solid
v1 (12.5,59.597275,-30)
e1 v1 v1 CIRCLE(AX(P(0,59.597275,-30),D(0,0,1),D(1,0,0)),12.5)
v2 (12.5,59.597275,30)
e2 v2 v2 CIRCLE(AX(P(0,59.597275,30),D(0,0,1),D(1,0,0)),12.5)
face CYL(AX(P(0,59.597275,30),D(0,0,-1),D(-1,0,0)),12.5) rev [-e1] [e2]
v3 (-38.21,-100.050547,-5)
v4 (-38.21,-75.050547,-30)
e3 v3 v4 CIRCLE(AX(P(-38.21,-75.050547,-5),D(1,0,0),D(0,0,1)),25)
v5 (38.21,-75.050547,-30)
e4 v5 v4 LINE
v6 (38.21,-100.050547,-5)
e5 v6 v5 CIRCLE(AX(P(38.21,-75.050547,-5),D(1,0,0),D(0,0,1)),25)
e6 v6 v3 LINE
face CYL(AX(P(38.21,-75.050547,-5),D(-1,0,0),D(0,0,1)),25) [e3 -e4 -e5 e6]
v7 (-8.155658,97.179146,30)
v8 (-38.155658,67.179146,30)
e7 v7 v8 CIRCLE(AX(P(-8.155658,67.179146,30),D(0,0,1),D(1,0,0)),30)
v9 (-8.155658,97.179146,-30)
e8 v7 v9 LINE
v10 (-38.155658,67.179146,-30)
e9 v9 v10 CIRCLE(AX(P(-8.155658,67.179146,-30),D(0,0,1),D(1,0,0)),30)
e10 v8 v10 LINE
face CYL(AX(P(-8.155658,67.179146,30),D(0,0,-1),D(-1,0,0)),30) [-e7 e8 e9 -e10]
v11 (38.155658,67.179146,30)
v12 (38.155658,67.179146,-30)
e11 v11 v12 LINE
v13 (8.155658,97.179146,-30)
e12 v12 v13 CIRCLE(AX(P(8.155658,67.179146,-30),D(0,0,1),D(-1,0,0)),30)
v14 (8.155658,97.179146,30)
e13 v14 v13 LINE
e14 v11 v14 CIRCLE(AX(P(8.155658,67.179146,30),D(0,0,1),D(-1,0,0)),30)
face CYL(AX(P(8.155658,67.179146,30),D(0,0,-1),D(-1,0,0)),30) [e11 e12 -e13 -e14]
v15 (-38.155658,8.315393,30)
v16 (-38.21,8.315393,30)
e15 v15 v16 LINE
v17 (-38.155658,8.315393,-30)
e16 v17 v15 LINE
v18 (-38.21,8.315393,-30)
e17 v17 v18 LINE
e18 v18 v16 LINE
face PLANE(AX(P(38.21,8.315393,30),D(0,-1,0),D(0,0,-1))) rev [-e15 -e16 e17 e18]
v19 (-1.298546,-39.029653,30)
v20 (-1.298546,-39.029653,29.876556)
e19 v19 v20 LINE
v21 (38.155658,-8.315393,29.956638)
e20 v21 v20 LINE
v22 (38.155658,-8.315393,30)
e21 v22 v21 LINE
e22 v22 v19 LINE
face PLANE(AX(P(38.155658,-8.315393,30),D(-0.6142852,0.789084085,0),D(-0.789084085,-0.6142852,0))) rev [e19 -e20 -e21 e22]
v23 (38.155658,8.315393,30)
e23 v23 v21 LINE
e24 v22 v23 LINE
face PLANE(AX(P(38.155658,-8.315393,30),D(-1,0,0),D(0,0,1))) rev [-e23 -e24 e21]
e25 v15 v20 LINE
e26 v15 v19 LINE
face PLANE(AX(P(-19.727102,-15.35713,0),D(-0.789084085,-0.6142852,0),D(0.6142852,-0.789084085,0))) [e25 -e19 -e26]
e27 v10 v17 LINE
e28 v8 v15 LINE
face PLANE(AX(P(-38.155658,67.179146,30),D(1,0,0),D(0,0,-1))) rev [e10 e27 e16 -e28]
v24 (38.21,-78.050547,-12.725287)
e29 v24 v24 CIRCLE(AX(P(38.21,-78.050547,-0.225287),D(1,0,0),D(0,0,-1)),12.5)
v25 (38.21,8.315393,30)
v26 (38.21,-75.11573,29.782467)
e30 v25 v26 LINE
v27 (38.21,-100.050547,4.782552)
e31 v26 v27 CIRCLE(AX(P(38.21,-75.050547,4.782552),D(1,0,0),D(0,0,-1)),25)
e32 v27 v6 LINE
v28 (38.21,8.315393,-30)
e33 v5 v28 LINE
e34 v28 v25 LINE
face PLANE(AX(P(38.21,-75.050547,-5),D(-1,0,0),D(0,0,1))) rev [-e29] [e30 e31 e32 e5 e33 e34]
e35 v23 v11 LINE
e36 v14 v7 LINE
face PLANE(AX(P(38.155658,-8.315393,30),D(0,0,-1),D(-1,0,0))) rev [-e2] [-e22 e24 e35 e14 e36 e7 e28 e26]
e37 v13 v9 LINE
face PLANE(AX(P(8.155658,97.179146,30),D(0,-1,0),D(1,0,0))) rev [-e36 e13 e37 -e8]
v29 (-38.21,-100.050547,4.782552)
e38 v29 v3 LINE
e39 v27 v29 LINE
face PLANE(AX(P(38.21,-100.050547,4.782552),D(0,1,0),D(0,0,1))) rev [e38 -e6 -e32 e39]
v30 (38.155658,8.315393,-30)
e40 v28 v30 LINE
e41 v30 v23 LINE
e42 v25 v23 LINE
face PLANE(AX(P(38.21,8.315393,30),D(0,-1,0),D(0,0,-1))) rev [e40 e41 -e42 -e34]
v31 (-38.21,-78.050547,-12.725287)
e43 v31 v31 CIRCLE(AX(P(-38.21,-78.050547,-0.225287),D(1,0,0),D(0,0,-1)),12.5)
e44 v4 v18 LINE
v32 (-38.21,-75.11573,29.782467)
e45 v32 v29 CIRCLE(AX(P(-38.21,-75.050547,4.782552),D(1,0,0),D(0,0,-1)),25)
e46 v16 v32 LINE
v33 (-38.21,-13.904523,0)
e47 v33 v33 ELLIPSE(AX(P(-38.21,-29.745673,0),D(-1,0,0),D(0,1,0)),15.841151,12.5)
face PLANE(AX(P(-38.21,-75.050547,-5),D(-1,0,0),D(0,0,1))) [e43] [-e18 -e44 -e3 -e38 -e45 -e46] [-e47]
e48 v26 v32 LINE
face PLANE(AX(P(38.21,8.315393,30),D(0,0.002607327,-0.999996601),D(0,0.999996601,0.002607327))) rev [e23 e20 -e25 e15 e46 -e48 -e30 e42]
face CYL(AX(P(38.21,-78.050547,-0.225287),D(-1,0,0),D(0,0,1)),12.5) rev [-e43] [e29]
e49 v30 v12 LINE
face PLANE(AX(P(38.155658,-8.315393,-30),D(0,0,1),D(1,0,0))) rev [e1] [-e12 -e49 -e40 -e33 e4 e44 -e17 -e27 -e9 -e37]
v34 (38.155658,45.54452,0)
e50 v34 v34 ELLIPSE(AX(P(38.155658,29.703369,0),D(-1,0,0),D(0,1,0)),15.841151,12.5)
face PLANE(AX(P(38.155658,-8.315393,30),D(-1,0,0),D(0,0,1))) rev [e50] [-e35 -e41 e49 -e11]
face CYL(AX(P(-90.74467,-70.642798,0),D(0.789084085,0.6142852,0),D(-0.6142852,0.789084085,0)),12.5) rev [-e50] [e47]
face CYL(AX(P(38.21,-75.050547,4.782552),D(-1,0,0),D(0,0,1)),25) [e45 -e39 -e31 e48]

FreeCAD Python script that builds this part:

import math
import FreeCAD as App
import Part
import Sketcher

V = App.Vector
Q = App.Units.Quantity


def add_polygon(sketch, points):
    """Adds a closed chain of lines whose ends are joined by coincident constraints."""
    first, n = sketch.GeometryCount, len(points)
    for a, b in zip(points, points[1:] + points[:1]):
        sketch.addGeometry(Part.LineSegment(App.Vector(*a, 0), App.Vector(*b, 0)), False)
    for i in range(n):
        sketch.addConstraint(Sketcher.Constraint("Coincident", first + i, 2, first + (i + 1) % n, 1))

doc = App.newDocument("Part")
body = doc.addObject("PartDesign::Body", "Body")

sketch1 = doc.addObject("Sketcher::SketchObject", "Sketch")
body.addObject(sketch1)
sketch1.Placement = App.Placement(V(0, 0, 0), App.Rotation(V(0, 0, -1), V(-0.6142852, 0.789084085, 0), V(0.789084085, 0.6142852, 0), "ZXY"))
add_polygon(sketch1, [(-30, 30), (-30, -30), (30, -30), (30, 30)])
sketch1.addGeometry(Part.Circle(V(0, 0, 0), V(0, 0, 1), 12), False)
sketch1.addConstraint([
    Sketcher.Constraint("Vertical", 0),
    Sketcher.Constraint("Horizontal", 1),
    Sketcher.Constraint("Vertical", 2),
    Sketcher.Constraint("Horizontal", 3),
    Sketcher.Constraint("Coincident", 4, 3, -1, 1),
    Sketcher.Constraint("Symmetric", 0, 2, 2, 2, -1, 1),
    Sketcher.Constraint("Equal", 3, 0),
    Sketcher.Constraint("Diameter", 4, Q("25 mm")),
    Sketcher.Constraint("DistanceX", 1, 1, 1, 2, Q("60 mm")),
])
pad1 = doc.addObject("PartDesign::Pad", "Pad")
body.addObject(pad1)
pad1.Profile = sketch1
pad1.Length = 50
pad1.Midplane = True

sketch2 = doc.addObject("Sketcher::SketchObject", "Sketch001")
body.addObject(sketch2)
sketch2.AttachmentSupport = (doc.XY_Plane, [""])
sketch2.MapMode = "FlatFace"
sketch2.addGeometry([
    Part.LineSegment(V(38, -8, 0), V(38, 67, 0)),
    Part.ArcOfCircle(Part.Circle(V(8, 67, 0), V(0, 0, 1), 30), math.radians(0), math.radians(90)),
    Part.LineSegment(V(8, 97, 0), V(-8, 97, 0)),
    Part.ArcOfCircle(Part.Circle(V(-8, 67, 0), V(0, 0, 1), 30), math.radians(90), math.radians(180)),
    Part.LineSegment(V(-38, 67, 0), V(-38, 8, 0)),
    Part.LineSegment(V(-38, 8, 0), V(38, -8, 0)),
    Part.Circle(V(0, 60, 0), V(0, 0, 1), 12),
], False)
sketch2.addConstraint([
    Sketcher.Constraint("Tangent", 0, 2, 1, 1),
    Sketcher.Constraint("Tangent", 1, 2, 2, 1),
    Sketcher.Constraint("Tangent", 2, 2, 3, 1),
    Sketcher.Constraint("Tangent", 3, 2, 4, 1),
    Sketcher.Constraint("Coincident", 4, 2, 5, 1),
    Sketcher.Constraint("Coincident", 5, 2, 0, 1),
    Sketcher.Constraint("Vertical", 0),
    Sketcher.Constraint("Horizontal", 2),
    Sketcher.Constraint("Vertical", 4),
    Sketcher.Constraint("Equal", 1, 3),
    Sketcher.Constraint("Symmetric", 4, 2, 5, 2, -1, 1),
    Sketcher.Constraint("PointOnObject", 6, 3, -2),
    Sketcher.Constraint("Diameter", 6, Q("25 mm")),
    Sketcher.Constraint("Radius", 1, Q("30 mm")),
    Sketcher.Constraint("DistanceY", 0, 1, 0, 2, Q("75.494539 mm")),
    Sketcher.Constraint("DistanceX", 2, 2, 2, 1, Q("16.311316 mm")),
    Sketcher.Constraint("DistanceY", 4, 2, 4, 1, Q("58.863754 mm")),
    Sketcher.Constraint("DistanceY", 6, 3, 1, 3, Q("7.581871 mm")),
])
pad2 = doc.addObject("PartDesign::Pad", "Pad001")
body.addObject(pad2)
pad2.Profile = sketch2
pad2.Length = 60
pad2.Midplane = True

sketch3 = doc.addObject("Sketcher::SketchObject", "Sketch002")
body.addObject(sketch3)
sketch3.AttachmentSupport = (doc.YZ_Plane, [""])
sketch3.MapMode = "FlatFace"
sketch3.addGeometry([
    Part.LineSegment(V(-100, 5, 0), V(-100, -5, 0)),
    Part.ArcOfCircle(Part.Circle(V(-75, -5, 0), V(0, 0, 1), 25), math.radians(180), math.radians(270)),
    Part.LineSegment(V(-75, -30, 0), V(8, -30, 0)),
    Part.LineSegment(V(8, -30, 0), V(8, 30, 0)),
    Part.LineSegment(V(8, 30, 0), V(-75, 30, 0)),
    Part.ArcOfCircle(Part.Circle(V(-75, 5, 0), V(0, 0, 1), 25), math.radians(90), math.radians(180)),
    Part.Circle(V(-78, 0, 0), V(0, 0, 1), 12),
], False)
sketch3.addConstraint([
    Sketcher.Constraint("Tangent", 0, 2, 1, 1),
    Sketcher.Constraint("Tangent", 1, 2, 2, 1),
    Sketcher.Constraint("Coincident", 2, 2, 3, 1),
    Sketcher.Constraint("Coincident", 3, 2, 4, 1),
    Sketcher.Constraint("Tangent", 4, 2, 5, 1),
    Sketcher.Constraint("Tangent", 5, 2, 0, 1),
    Sketcher.Constraint("Vertical", 0),
    Sketcher.Constraint("Horizontal", 2),
    Sketcher.Constraint("Vertical", 3),
    Sketcher.Constraint("Equal", 1, 5),
    Sketcher.Constraint("Diameter", 6, Q("25 mm")),
    Sketcher.Constraint("Radius", 1, Q("25 mm")),
    Sketcher.Constraint("DistanceY", 3, 1, 3, 2, Q("60 mm")),
    Sketcher.Constraint("DistanceY", 1, 3, -1, 1, Q("5 mm")),
    Sketcher.Constraint("DistanceX", 6, 3, 1, 3, Q("3 mm")),
    Sketcher.Constraint("DistanceX", 2, 1, 2, 2, Q("83.36594 mm")),
    Sketcher.Constraint("DistanceY", 0, 2, 0, 1, Q("9.782552 mm")),
    Sketcher.Constraint("DistanceX", 4, 2, -1, 1, Q("75.11573 mm")),
    Sketcher.Constraint("DistanceY", 6, 3, 5, 3, Q("5.007839 mm")),
])
pad3 = doc.addObject("PartDesign::Pad", "Pad002")
body.addObject(pad3)
pad3.Profile = sketch3
pad3.Length = 76.42
pad3.Midplane = True

sketch4 = doc.addObject("Sketcher::SketchObject", "Sketch003")
body.addObject(sketch4)
sketch4.Placement = App.Placement(V(0, 0, 0), App.Rotation(V(0, 0, -1), V(-0.6142852, 0.789084085, 0), V(0.789084085, 0.6142852, 0), "ZXY"))
sketch4.addGeometry(Part.Circle(V(0, 0, 0), V(0, 0, 1), 12), False)
sketch4.addConstraint([
    Sketcher.Constraint("Coincident", 0, 3, -1, 1),
    Sketcher.Constraint("Diameter", 0, Q("25 mm")),
])
pocket1 = doc.addObject("PartDesign::Pocket", "Pocket")
body.addObject(pocket1)
pocket1.Profile = sketch4
pocket1.Length = 230
pocket1.Midplane = True

doc.recompute()
